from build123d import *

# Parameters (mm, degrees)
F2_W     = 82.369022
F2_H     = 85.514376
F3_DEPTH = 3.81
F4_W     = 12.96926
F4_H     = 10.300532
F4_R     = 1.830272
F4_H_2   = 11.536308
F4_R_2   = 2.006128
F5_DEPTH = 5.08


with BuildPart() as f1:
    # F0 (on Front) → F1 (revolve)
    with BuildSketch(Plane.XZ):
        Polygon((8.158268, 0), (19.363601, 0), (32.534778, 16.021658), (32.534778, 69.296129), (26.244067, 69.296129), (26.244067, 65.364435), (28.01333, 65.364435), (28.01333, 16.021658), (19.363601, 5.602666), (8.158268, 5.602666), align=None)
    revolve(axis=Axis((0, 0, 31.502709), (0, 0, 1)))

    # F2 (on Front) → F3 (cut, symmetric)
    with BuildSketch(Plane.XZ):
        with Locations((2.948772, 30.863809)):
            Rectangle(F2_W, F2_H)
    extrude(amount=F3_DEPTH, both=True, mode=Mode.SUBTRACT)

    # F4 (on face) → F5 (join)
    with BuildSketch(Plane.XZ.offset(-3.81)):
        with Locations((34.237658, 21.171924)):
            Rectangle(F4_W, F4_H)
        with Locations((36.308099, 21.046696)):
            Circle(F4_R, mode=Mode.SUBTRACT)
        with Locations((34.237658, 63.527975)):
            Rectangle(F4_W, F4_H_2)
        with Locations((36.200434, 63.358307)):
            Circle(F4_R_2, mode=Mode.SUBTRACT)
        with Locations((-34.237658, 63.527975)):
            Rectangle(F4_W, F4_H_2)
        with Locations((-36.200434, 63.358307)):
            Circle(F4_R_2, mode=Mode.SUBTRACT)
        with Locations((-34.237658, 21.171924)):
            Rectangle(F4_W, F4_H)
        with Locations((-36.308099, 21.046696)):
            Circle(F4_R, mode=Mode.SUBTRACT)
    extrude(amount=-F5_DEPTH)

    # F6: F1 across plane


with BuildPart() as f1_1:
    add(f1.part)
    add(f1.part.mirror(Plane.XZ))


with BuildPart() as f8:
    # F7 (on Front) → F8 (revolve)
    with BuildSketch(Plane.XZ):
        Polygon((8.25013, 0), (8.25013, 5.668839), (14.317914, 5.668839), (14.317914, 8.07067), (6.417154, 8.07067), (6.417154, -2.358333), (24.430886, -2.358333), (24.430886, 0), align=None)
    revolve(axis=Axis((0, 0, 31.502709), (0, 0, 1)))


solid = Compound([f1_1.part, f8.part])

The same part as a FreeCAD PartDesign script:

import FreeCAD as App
import Part
import Sketcher
Q = App.Units.Quantity


def add_polygon(sketch, points):
    """Adds a closed chain of lines whose ends are joined by coincident constraints."""
    first, n = sketch.GeometryCount, len(points)
    for a, b in zip(points, points[1:] + points[:1]):
        sketch.addGeometry(Part.LineSegment(App.Vector(*a, 0), App.Vector(*b, 0)), False)
    for i in range(n):
        sketch.addConstraint(Sketcher.Constraint("Coincident", first + i, 2, first + (i + 1) % n, 1))

doc = App.newDocument("Part")
body = doc.addObject("PartDesign::Body", "Body")
body.AllowCompound = True

# Sketch on XZ plane
sketch1 = body.newObject("Sketcher::SketchObject", "Sketch")
sketch1.AttachmentSupport = (doc.getObject("XZ_Plane"), [""])
sketch1.MapMode = "FlatFace"
add_polygon(sketch1, [(8.2, 0), (19.4, 0), (32.5, 16), (32.5, 69.3), (26.2, 69.3), (26.2, 65.4), (28, 65.4), (28, 16), (19.4, 5.6), (8.2, 5.6)])  # lines 0-9
sketch1.addConstraint([
    Sketcher.Constraint("Horizontal", 0),
    Sketcher.Constraint("Vertical", 2),
    Sketcher.Constraint("Horizontal", 3),
    Sketcher.Constraint("Vertical", 4),
    Sketcher.Constraint("Horizontal", 5),
    Sketcher.Constraint("Vertical", 6),
    Sketcher.Constraint("Horizontal", 8),
    Sketcher.Constraint("Vertical", 9),
    Sketcher.Constraint("PointOnObject", 0, 2, -1),
    Sketcher.Constraint("Horizontal", 1, 2, 6, 2),
    Sketcher.Constraint("Vertical", 0, 2, 7, 2),
    Sketcher.Constraint("DistanceX", 3, 2, 3, 1, Q("6.290711 mm")),
    Sketcher.Constraint("DistanceY", 2, 1, 2, 2, Q("53.274471 mm")),
    Sketcher.Constraint("DistanceX", -1, 1, 0, 2, Q("19.363601 mm")),
    Sketcher.Constraint("DistanceX", 8, 2, 4, 2, Q("18.085799 mm")),
    Sketcher.Constraint("DistanceX", 0, 1, 0, 2, Q("11.205333 mm")),
    Sketcher.Constraint("DistanceX", 5, 1, 5, 2, Q("1.769263 mm")),
    Sketcher.Constraint("DistanceY", 4, 2, 4, 1, Q("3.931694 mm")),
    Sketcher.Constraint("DistanceY", 9, 2, 9, 1, Q("5.602666 mm")),
    Sketcher.Constraint("DistanceY", -1, 1, 2, 2, Q("69.296129 mm")),
])
revolution = body.newObject("PartDesign::Revolution", "Revolution")
revolution.Profile = sketch1
revolution.ReferenceAxis = (sketch1, ["V_Axis"])
revolution.Angle = 360

# Sketch on XZ plane
sketch2 = body.newObject("Sketcher::SketchObject", "Sketch001")
sketch2.AttachmentSupport = (doc.getObject("XZ_Plane"), [""])
sketch2.MapMode = "FlatFace"
add_polygon(sketch2, [(-38, 74), (-38, -12), (44, -12), (44, 74)])  # lines 0-3
sketch2.addConstraint([
    Sketcher.Constraint("Vertical", 0),
    Sketcher.Constraint("Horizontal", 1),
    Sketcher.Constraint("Vertical", 2),
    Sketcher.Constraint("Horizontal", 3),
    Sketcher.Constraint("DistanceX", 1, 1, 1, 2, Q("82.369022 mm")),
    Sketcher.Constraint("DistanceY", 0, 2, 0, 1, Q("85.514376 mm")),
    Sketcher.Constraint("DistanceX", 0, 2, -1, 1, Q("38.235739 mm")),
    Sketcher.Constraint("DistanceY", 0, 2, -1, 1, Q("11.893379 mm")),
])
pocket1 = body.newObject("PartDesign::Pocket", "Pocket")
pocket1.Profile = sketch2
pocket1.Length = Q("0.3 in")
pocket1.Midplane = True

# Sketch on XZ plane
sketch3 = body.newObject("Sketcher::SketchObject", "Sketch002")
sketch3.AttachmentSupport = (doc.getObject("XZ_Plane"), [""])
sketch3.MapMode = "FlatFace"
sketch3.AttachmentOffset = App.Placement(App.Vector(0, 0, -0.15 * 25.4), App.Rotation())
add_polygon(sketch3, [(27.8, 26.3), (27.8, 16), (40.7, 16), (40.7, 26.3)])  # lines 0-3
sketch3.addGeometry(Part.Circle(App.Vector(36.3, 21, 0), App.Vector(0, 0, 1), 1.8), False)  # 4
add_polygon(sketch3, [(27.8, 69.3), (27.8, 57.8), (40.7, 57.8), (40.7, 69.3)])  # lines 5-8
sketch3.addGeometry(Part.Circle(App.Vector(36.2, 63.4, 0), App.Vector(0, 0, 1), 2), False)  # 9
add_polygon(sketch3, [(-40.7, 69.3), (-40.7, 57.8), (-27.8, 57.8), (-27.8, 69.3)])  # lines 10-13
sketch3.addGeometry(Part.Circle(App.Vector(-36.2, 63.4, 0), App.Vector(0, 0, 1), 2), False)  # 14
add_polygon(sketch3, [(-40.7, 26.3), (-40.7, 16), (-27.8, 16), (-27.8, 26.3)])  # lines 15-18
sketch3.addGeometry(Part.Circle(App.Vector(-36.3, 21, 0), App.Vector(0, 0, 1), 1.8), False)  # 19
sketch3.addConstraint([
    Sketcher.Constraint("Vertical", 0),
    Sketcher.Constraint("Horizontal", 1),
    Sketcher.Constraint("Vertical", 2),
    Sketcher.Constraint("Horizontal", 3),
    Sketcher.Constraint("Vertical", 5),
    Sketcher.Constraint("Horizontal", 6),
    Sketcher.Constraint("Vertical", 7),
    Sketcher.Constraint("Horizontal", 8),
    Sketcher.Constraint("Vertical", 10),
    Sketcher.Constraint("Horizontal", 11),
    Sketcher.Constraint("Vertical", 12),
    Sketcher.Constraint("Horizontal", 13),
    Sketcher.Constraint("Vertical", 15),
    Sketcher.Constraint("Horizontal", 16),
    Sketcher.Constraint("Vertical", 17),
    Sketcher.Constraint("Horizontal", 18),
    Sketcher.Constraint("Equal", 9, 14),
    Sketcher.Constraint("Equal", 4, 19),
    Sketcher.Constraint("Symmetric", 9, 3, 14, 3, -2),
    Sketcher.Constraint("Symmetric", 4, 3, 19, 3, -2),
    Sketcher.Constraint("Symmetric", 6, 2, 10, 2, -2),
    Sketcher.Constraint("Symmetric", 8, 2, 12, 2, -2),
    Sketcher.Constraint("Symmetric", 1, 2, 15, 2, -2),
    Sketcher.Constraint("Symmetric", 3, 2, 17, 2, -2),
    Sketcher.Constraint("Vertical", 3, 2, 5, 2),
    Sketcher.Constraint("Vertical", 2, 2, 6, 2),
    Sketcher.Constraint("Diameter", 4, Q("3.660544 mm")),
    Sketcher.Constraint("Diameter", 9, Q("4.012256 mm")),
    Sketcher.Constraint("DistanceX", 1, 1, 1, 2, Q("12.96926 mm")),
    Sketcher.Constraint("DistanceX", -1, 1, 4, 3, Q("36.308099 mm")),
    Sketcher.Constraint("DistanceY", 0, 2, 0, 1, Q("10.300532 mm")),
    Sketcher.Constraint("DistanceY", 5, 2, 5, 1, Q("11.536308 mm")),
    Sketcher.Constraint("DistanceX", -1, 1, 0, 2, Q("27.753028 mm")),
    Sketcher.Constraint("DistanceY", -1, 1, 2, 2, Q("26.32219 mm")),
    Sketcher.Constraint("DistanceY", -1, 1, 5, 2, Q("57.759821 mm")),
    Sketcher.Constraint("DistanceY", 4, 3, 9, 3, Q("42.311611 mm")),
    Sketcher.Constraint("DistanceX", 14, 3, 9, 3, Q("72.400868 mm")),
    Sketcher.Constraint("DistanceY", 0, 2, 4, 3, Q("5.025038 mm")),
])
pad1 = body.newObject("PartDesign::Pad", "Pad")
pad1.Profile = sketch3
pad1.Length = Q("0.2 in")
pad1.Reversed = True
body2 = doc.addObject("PartDesign::Body", "Body001")
body2.AllowCompound = True
doc.recompute()

body2.BaseFeature = body
doc.recompute()

mirroring = doc.addObject("Part::Mirroring", "Mirroring")
mirroring.Source = body
mirroring.Base = App.Vector(0, 0, 0)
mirroring.Normal = App.Vector(0, -1, 0)
body3 = doc.addObject("PartDesign::Body", "Body002")
body3.BaseFeature = mirroring
boolean = body2.newObject("PartDesign::Boolean", "Boolean")
boolean.Type = "Fuse"
boolean.addObjects([body3])
doc.recompute()
body4 = doc.addObject("PartDesign::Body", "Body003")

# Sketch on XZ plane
sketch4 = body4.newObject("Sketcher::SketchObject", "Sketch003")
sketch4.AttachmentSupport = (doc.getObject("XZ_Plane003"), [""])
sketch4.MapMode = "FlatFace"
add_polygon(sketch4, [(8.3, 0), (8.3, 5.7), (14.3, 5.7), (14.3, 8.1), (6.4, 8.1), (6.4, -2.4), (24.4, -2.4), (24.4, 0)])  # lines 0-7
sketch4.addConstraint([
    Sketcher.Constraint("Vertical", 0),
    Sketcher.Constraint("Horizontal", 1),
    Sketcher.Constraint("Vertical", 2),
    Sketcher.Constraint("Horizontal", 3),
    Sketcher.Constraint("Vertical", 4),
    Sketcher.Constraint("Horizontal", 5),
    Sketcher.Constraint("Vertical", 6),
    Sketcher.Constraint("Horizontal", 7),
    Sketcher.Constraint("PointOnObject", 6, 2, -1),
    Sketcher.Constraint("DistanceX", 3, 2, 3, 1, Q("7.90076 mm")),
    Sketcher.Constraint("DistanceY", 0, 1, 0, 2, Q("5.668839 mm")),
    Sketcher.Constraint("DistanceY", 2, 1, 2, 2, Q("2.401831 mm")),
    Sketcher.Constraint("DistanceX", 1, 1, 1, 2, Q("6.067784 mm")),
    Sketcher.Constraint("DistanceX", 5, 1, 5, 2, Q("18.013732 mm")),
    Sketcher.Constraint("DistanceY", 4, 2, 4, 1, Q("10.429003 mm")),
    Sketcher.Constraint("DistanceX", -1, 1, 0, 2, Q("8.25013 mm")),
])
revolution2 = body4.newObject("PartDesign::Revolution", "Revolution001")
revolution2.Profile = sketch4
revolution2.ReferenceAxis = (sketch4, ["V_Axis"])
revolution2.Angle = 360
mirroring.Visibility = False

doc.recompute()
